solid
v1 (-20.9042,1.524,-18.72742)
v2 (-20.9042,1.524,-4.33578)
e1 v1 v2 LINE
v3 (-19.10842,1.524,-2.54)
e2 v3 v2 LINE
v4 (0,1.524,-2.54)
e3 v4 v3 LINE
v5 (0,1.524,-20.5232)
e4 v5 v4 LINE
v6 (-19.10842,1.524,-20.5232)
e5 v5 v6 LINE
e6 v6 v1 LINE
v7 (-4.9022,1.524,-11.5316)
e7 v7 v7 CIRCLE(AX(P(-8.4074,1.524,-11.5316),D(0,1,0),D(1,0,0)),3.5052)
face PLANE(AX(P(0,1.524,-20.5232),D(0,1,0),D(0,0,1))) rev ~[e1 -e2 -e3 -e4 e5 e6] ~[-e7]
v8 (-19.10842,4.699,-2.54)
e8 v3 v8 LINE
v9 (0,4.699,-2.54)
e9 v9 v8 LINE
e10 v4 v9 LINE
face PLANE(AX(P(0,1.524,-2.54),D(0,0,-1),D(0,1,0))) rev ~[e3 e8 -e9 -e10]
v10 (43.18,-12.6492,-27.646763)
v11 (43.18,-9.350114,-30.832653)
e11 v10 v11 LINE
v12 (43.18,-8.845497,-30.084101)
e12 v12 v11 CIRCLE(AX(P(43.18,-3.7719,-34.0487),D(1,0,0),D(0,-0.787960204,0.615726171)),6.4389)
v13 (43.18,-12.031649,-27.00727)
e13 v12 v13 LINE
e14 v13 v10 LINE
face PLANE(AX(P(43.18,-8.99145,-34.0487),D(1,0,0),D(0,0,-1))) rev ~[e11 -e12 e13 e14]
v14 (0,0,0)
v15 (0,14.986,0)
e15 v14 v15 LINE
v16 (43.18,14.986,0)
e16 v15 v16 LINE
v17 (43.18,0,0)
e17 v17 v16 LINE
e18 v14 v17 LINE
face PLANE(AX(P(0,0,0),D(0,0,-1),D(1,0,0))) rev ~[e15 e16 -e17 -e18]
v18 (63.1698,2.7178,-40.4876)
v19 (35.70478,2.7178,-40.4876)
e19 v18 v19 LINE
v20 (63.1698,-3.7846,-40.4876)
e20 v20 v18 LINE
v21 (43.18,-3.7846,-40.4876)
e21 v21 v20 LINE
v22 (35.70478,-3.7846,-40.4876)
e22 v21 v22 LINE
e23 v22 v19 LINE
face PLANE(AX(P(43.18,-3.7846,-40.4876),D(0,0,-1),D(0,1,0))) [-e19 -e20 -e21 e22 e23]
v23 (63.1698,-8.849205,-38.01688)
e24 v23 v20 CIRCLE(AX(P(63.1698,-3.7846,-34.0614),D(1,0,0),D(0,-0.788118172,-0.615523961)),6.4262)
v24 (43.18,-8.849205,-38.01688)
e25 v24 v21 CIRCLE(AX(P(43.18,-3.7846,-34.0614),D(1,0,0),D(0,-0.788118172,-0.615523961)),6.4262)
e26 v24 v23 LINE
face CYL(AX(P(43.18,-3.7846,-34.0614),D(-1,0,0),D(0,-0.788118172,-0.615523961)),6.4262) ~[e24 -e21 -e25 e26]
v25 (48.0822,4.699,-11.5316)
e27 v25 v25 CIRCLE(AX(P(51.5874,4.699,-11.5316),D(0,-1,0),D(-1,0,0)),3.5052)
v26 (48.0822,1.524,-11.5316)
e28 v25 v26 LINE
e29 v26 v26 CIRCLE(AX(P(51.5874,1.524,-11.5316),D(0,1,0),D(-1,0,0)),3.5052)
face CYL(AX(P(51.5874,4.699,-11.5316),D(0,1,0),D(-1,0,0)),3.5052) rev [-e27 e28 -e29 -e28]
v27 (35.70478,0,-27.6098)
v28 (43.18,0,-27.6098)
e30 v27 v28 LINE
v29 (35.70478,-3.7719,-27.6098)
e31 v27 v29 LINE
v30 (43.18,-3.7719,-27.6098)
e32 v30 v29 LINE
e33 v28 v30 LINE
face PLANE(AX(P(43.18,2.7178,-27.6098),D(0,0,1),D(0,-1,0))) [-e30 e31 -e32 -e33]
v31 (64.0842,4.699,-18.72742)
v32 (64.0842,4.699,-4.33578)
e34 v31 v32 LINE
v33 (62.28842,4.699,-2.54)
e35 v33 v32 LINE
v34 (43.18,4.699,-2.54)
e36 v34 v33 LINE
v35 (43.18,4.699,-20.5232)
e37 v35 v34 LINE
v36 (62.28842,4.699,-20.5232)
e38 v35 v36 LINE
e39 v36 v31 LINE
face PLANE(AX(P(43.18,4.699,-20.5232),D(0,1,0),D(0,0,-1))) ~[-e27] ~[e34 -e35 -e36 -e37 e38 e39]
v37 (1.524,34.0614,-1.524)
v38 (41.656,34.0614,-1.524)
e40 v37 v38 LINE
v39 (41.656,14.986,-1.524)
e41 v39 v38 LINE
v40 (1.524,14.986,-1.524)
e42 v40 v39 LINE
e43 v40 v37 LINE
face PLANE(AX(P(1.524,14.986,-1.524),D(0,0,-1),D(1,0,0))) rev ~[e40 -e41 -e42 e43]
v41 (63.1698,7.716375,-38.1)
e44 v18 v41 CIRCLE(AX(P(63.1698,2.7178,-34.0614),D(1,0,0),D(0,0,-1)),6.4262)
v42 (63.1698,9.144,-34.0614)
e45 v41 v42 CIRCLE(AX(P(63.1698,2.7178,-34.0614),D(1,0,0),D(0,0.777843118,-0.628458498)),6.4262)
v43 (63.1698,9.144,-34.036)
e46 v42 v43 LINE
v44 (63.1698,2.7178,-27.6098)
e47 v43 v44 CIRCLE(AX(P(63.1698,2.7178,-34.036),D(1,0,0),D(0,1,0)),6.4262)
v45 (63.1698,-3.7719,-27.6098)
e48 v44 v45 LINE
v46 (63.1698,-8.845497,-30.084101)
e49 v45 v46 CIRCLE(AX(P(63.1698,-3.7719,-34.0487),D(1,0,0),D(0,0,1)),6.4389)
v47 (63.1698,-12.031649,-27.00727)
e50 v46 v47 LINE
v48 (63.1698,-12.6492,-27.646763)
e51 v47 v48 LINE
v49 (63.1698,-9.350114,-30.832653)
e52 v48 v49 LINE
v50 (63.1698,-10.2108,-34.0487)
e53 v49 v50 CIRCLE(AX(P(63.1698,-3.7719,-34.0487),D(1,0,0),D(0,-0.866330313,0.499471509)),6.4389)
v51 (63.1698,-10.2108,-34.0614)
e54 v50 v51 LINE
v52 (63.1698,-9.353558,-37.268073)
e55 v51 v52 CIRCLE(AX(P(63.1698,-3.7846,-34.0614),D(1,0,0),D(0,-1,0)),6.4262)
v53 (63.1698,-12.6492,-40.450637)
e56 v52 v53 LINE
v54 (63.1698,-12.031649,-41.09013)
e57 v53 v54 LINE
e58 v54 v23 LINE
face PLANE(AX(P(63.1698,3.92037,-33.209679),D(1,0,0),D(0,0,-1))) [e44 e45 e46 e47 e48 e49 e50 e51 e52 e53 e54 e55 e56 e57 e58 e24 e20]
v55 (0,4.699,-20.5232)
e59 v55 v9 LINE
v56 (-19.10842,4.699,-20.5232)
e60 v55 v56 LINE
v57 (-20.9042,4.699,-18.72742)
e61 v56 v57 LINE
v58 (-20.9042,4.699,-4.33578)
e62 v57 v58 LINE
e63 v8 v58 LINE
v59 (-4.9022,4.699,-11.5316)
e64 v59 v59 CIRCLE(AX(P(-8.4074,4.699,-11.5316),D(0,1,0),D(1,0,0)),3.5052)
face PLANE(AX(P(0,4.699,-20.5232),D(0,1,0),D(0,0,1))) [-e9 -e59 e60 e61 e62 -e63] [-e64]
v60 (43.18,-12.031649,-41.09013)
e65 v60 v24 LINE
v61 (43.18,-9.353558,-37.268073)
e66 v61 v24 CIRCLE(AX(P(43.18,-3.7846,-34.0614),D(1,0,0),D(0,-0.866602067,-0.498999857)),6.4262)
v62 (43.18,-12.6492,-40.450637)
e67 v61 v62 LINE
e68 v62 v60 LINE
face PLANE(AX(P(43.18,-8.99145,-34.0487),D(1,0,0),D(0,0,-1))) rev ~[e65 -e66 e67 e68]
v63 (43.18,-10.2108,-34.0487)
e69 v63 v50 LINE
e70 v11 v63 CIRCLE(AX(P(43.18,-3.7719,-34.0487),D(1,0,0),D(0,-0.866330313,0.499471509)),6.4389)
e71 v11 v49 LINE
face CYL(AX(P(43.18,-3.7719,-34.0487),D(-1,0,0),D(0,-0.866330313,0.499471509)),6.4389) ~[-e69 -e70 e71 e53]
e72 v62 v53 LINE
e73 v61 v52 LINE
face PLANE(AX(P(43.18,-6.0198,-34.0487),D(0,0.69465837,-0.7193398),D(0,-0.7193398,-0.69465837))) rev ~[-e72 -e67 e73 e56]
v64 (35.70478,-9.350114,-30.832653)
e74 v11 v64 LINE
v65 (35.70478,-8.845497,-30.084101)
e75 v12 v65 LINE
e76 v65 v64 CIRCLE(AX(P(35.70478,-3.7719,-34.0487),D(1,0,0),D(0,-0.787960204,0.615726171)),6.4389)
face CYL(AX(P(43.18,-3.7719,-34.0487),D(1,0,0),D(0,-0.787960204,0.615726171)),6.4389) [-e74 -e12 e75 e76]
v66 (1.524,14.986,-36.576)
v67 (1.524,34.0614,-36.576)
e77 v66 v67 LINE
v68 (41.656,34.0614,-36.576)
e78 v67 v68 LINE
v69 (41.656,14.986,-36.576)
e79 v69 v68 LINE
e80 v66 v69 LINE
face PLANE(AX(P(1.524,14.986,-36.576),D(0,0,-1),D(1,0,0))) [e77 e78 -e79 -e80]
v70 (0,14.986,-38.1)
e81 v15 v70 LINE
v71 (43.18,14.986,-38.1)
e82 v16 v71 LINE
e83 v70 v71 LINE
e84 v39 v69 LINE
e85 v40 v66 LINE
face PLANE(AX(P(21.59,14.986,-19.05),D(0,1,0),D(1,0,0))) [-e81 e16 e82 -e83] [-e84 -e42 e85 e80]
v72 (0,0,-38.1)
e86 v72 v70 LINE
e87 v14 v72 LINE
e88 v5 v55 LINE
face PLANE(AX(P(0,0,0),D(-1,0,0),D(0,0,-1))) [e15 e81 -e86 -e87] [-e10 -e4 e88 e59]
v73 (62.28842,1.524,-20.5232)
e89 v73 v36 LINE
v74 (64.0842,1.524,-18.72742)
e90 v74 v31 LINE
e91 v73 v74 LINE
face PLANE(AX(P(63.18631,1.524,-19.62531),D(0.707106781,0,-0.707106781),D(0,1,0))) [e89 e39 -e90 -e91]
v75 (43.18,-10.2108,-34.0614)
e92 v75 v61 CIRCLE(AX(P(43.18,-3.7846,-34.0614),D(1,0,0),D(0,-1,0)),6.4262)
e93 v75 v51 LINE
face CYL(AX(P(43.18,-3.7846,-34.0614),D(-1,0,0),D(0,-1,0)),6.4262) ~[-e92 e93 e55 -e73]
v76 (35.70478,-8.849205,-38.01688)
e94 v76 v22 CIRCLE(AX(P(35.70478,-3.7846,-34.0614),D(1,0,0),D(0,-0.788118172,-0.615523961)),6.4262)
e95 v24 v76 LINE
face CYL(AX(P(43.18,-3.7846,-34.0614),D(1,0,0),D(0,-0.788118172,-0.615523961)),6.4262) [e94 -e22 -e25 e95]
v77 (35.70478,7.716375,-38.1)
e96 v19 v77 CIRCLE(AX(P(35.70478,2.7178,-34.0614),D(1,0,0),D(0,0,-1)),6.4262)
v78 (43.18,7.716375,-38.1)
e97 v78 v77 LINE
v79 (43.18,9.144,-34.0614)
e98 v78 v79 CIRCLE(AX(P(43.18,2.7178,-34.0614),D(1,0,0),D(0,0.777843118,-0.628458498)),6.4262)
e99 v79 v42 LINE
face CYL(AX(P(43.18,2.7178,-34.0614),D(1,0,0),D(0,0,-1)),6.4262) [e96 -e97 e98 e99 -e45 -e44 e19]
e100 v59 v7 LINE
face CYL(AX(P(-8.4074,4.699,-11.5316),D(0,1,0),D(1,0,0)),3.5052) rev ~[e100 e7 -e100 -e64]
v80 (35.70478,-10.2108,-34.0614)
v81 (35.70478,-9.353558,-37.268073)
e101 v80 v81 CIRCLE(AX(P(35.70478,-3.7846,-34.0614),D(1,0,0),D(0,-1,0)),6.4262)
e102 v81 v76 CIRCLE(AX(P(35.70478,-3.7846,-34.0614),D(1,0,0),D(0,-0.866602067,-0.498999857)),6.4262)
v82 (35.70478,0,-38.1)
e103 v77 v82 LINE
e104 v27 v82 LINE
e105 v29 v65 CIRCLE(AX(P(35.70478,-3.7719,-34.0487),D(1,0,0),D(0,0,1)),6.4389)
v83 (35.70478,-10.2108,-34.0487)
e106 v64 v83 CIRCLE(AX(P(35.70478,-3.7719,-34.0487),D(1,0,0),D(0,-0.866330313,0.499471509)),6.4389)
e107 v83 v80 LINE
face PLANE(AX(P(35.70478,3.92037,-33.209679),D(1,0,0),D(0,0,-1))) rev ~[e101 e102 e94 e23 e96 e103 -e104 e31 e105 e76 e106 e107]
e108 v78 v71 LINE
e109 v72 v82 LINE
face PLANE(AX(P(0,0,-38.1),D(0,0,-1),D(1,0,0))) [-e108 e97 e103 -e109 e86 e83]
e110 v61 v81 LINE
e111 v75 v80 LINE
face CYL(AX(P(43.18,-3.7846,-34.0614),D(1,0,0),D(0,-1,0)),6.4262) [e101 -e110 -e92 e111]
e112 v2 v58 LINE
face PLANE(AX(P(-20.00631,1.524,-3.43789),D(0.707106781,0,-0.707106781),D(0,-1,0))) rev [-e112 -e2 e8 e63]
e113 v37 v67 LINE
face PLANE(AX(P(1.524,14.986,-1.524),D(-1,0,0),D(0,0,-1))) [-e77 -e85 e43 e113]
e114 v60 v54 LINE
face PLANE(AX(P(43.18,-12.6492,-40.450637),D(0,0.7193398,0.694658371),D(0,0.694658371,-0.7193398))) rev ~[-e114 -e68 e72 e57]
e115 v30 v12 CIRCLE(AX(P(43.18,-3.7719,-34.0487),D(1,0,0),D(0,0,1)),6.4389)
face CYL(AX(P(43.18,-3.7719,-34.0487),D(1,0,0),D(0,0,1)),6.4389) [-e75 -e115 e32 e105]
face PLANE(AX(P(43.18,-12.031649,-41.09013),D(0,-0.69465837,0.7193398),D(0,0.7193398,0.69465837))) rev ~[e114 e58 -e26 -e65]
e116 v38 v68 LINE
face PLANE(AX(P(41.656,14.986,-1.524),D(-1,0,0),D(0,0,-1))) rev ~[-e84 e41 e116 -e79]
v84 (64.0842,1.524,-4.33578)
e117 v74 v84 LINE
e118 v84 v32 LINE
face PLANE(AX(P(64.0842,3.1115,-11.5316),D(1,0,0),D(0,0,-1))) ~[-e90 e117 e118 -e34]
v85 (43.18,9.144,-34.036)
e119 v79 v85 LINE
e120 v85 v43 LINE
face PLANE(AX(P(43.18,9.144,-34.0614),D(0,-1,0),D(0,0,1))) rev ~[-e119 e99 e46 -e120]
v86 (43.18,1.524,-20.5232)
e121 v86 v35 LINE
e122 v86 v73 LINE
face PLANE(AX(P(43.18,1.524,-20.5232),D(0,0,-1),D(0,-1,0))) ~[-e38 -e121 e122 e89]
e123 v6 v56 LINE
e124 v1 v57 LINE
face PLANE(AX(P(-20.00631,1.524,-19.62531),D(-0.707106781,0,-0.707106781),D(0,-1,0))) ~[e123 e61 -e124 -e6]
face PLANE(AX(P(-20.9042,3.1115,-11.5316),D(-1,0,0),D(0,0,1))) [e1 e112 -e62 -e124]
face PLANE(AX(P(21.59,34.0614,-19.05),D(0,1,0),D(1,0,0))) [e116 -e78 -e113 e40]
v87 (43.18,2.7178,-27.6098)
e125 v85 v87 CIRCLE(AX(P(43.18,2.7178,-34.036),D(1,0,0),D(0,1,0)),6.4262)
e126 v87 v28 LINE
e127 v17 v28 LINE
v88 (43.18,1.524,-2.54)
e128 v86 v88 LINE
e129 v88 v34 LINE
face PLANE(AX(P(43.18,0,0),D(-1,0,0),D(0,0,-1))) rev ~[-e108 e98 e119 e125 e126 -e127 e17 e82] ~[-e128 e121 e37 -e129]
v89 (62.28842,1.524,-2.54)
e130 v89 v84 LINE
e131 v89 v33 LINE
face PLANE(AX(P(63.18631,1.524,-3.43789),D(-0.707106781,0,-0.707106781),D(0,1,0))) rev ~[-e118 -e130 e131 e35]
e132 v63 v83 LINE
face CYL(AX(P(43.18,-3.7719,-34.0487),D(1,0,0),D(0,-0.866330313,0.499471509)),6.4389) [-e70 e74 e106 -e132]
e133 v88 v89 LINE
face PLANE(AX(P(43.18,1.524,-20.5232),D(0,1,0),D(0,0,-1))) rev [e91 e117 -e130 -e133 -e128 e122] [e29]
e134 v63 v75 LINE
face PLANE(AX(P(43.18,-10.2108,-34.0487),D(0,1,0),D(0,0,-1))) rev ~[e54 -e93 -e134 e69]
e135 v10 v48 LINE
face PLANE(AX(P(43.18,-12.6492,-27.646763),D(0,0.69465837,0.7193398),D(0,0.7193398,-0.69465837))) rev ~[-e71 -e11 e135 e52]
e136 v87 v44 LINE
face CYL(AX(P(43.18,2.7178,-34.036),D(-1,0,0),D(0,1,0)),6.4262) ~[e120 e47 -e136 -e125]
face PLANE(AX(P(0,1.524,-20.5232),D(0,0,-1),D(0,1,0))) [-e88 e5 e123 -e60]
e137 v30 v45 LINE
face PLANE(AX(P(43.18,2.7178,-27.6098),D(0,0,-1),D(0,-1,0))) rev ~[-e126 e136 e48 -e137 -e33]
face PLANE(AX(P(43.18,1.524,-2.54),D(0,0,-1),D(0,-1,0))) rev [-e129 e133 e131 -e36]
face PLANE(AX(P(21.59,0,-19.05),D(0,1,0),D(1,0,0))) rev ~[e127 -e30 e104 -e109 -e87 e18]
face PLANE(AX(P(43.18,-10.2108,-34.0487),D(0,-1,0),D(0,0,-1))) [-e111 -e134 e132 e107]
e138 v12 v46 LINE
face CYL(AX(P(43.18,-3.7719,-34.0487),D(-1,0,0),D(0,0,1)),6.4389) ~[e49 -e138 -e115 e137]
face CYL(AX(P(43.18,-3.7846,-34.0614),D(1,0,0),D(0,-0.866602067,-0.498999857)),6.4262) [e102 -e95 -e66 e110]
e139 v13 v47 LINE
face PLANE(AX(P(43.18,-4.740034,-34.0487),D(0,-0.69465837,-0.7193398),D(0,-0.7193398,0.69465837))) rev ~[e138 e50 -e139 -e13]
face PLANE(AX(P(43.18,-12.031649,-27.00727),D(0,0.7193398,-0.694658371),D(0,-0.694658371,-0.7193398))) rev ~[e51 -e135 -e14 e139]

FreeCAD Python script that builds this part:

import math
import FreeCAD as App
import Part
import Sketcher
from FreeCAD import Vector
Q = App.Units.Quantity


def edges_at(feature, points):
    """Names of the edges that pass closest to the given points."""
    edges = feature.Shape.Edges
    near = lambda p: min(range(len(edges)), key=lambda i: edges[i].distToShape(Part.Vertex(*p))[0])
    return sorted({f"Edge{near(p) + 1}" for p in points})


def add_polygon(sketch, points):
    """Adds a closed chain of lines whose ends are joined by coincident constraints."""
    first, n = sketch.GeometryCount, len(points)
    for a, b in zip(points, points[1:] + points[:1]):
        sketch.addGeometry(Part.LineSegment(App.Vector(*a, 0), App.Vector(*b, 0)), False)
    for i in range(n):
        sketch.addConstraint(Sketcher.Constraint("Coincident", first + i, 2, first + (i + 1) % n, 1))

doc = App.newDocument("Part")
body = doc.addObject("PartDesign::Body", "Body")

sketch1 = doc.addObject("Sketcher::SketchObject", "Sketch")
body.addObject(sketch1)
sketch1.AttachmentSupport = (doc.XZ_Plane, [""])
sketch1.MapMode = "FlatFace"
add_polygon(sketch1, [(0, -38), (0, 0), (43, 0), (43, -38)])
sketch1.addConstraint([
    Sketcher.Constraint("Vertical", 0),
    Sketcher.Constraint("Horizontal", 1),
    Sketcher.Constraint("Vertical", 2),
    Sketcher.Constraint("Horizontal", 3),
    Sketcher.Constraint("Coincident", 0, 2, -1, 1),
    Sketcher.Constraint("DistanceX", 1, 1, 1, 2, Q("1.7 in")),
    Sketcher.Constraint("DistanceY", 0, 1, 0, 2, Q("1.5 in")),
])
pad1 = doc.addObject("PartDesign::Pad", "Pad")
body.addObject(pad1)
pad1.Profile = sketch1
pad1.Length = Q("0.59 in")
pad1.Reversed = True

sketch2 = doc.addObject("Sketcher::SketchObject", "Sketch001")
body.addObject(sketch2)
sketch2.AttachmentSupport = (doc.XZ_Plane, [""])
sketch2.MapMode = "FlatFace"
sketch2.AttachmentOffset = App.Placement(Vector(0, 0, -0.59 * 25.4), App.Rotation())
add_polygon(sketch2, [(2, -37), (2, -2), (42, -2), (42, -37)])
sketch2.addConstraint([
    Sketcher.Constraint("Vertical", 0),
    Sketcher.Constraint("Horizontal", 1),
    Sketcher.Constraint("Vertical", 2),
    Sketcher.Constraint("Horizontal", 3),
    Sketcher.Constraint("DistanceX", 1, 1, 1, 2, Q("1.58 in")),
    Sketcher.Constraint("DistanceY", 0, 1, 0, 2, Q("1.38 in")),
    Sketcher.Constraint("DistanceX", -1, 1, 0, 2, Q("0.06 in")),
    Sketcher.Constraint("DistanceY", 0, 2, -1, 1, Q("0.06 in")),
])
pad2 = doc.addObject("PartDesign::Pad", "Pad001")
body.addObject(pad2)
pad2.Profile = sketch2
pad2.Length = Q("0.751 in")
pad2.Reversed = True

sketch3 = doc.addObject("Sketcher::SketchObject", "Sketch002")
body.addObject(sketch3)
sketch3.AttachmentSupport = (doc.YZ_Plane, [""])
sketch3.MapMode = "FlatFace"
add_polygon(sketch3, [(4.7, -20.5), (1.5, -20.5), (1.5, -2.5), (4.7, -2.5)])
sketch3.addConstraint([
    Sketcher.Constraint("Horizontal", 0),
    Sketcher.Constraint("Vertical", 1),
    Sketcher.Constraint("Horizontal", 2),
    Sketcher.Constraint("Vertical", 3),
    Sketcher.Constraint("DistanceY", 1, 2, -1, 1, Q("0.1 in")),
    Sketcher.Constraint("DistanceX", 0, 2, 0, 1, Q("0.125 in")),
    Sketcher.Constraint("DistanceY", 1, 1, 1, 2, Q("0.708 in")),
    Sketcher.Constraint("DistanceX", -1, 1, 0, 2, Q("0.06 in")),
])
pad3 = doc.addObject("PartDesign::Pad", "Pad002")
body.addObject(pad3)
pad3.Profile = sketch3
pad3.Length = Q("0.823 in")
pad3.Reversed = True
doc.recompute()

datumplane = doc.addObject("PartDesign::Plane", "DatumPlane")
body.addObject(datumplane)
datumplane.AttachmentSupport = (doc.YZ_Plane, [""])
datumplane.MapMode = "FlatFace"
datumplane.AttachmentOffset = App.Placement(Vector(0, 0, 0.85 * 25.4), App.Rotation())
mirrored = doc.addObject("PartDesign::Mirrored", "Mirrored")
body.addObject(mirrored)
mirrored.Originals = [pad3]
mirrored.MirrorPlane = (datumplane, [""])
body.Tip = mirrored

sketch4 = doc.addObject("Sketcher::SketchObject", "Sketch003")
body.addObject(sketch4)
sketch4.AttachmentSupport = (doc.XZ_Plane, [""])
sketch4.MapMode = "FlatFace"
sketch4.AttachmentOffset = App.Placement(Vector(0, 0, -0.185 * 25.4), App.Rotation())
sketch4.addGeometry(Part.Circle(Vector(-8.4, -11.5, 0), Vector(0, 0, 1), 3.5), False)
sketch4.addConstraint([
    Sketcher.Constraint("Diameter", 0, Q("0.276 in")),
    Sketcher.Constraint("DistanceX", 0, 3, -1, 1, Q("0.331 in")),
    Sketcher.Constraint("DistanceY", 0, 3, -1, 1, Q("0.454 in")),
])
pocket1 = doc.addObject("PartDesign::Pocket", "Pocket")
body.addObject(pocket1)
pocket1.Profile = sketch4
pocket1.Type = "ThroughAll"
pocket1.Reversed = True
doc.recompute()

datumplane2 = doc.addObject("PartDesign::Plane", "DatumPlane001")
body.addObject(datumplane2)
datumplane2.AttachmentSupport = (doc.YZ_Plane, [""])
datumplane2.MapMode = "FlatFace"
datumplane2.AttachmentOffset = App.Placement(Vector(0, 0, 0.85 * 25.4), App.Rotation())
mirrored2 = doc.addObject("PartDesign::Mirrored", "Mirrored001")
body.addObject(mirrored2)
mirrored2.Originals = [pocket1]
mirrored2.MirrorPlane = (datumplane2, [""])
body.Tip = mirrored2
doc.recompute()

chamfer = doc.addObject("PartDesign::Chamfer", "Chamfer")
body.addObject(chamfer)
chamfer.Base = (mirrored2, edges_at(mirrored2, [(64.084, 3.111, -20.523), (64.084, 3.111, -2.54)]))
chamfer.Size = Q("0.0707 in")
doc.recompute()

chamfer2 = doc.addObject("PartDesign::Chamfer", "Chamfer001")
body.addObject(chamfer2)
chamfer2.Base = (chamfer, edges_at(chamfer, [(-20.904, 3.111, -20.523), (-20.904, 3.111, -2.54)]))
chamfer2.Size = Q("0.0707 in")

sketch5 = doc.addObject("Sketcher::SketchObject", "Sketch004")
body.addObject(sketch5)
sketch5.AttachmentSupport = (doc.YZ_Plane, [""])
sketch5.MapMode = "FlatFace"
sketch5.AttachmentOffset = App.Placement(Vector(0, 0, 1.7 * 25.4), App.Rotation())
sketch5.addGeometry([
    Part.LineSegment(Vector(9.144, -34.061, 0), Vector(9.144, -34.036, 0)),
    Part.ArcOfCircle(Part.Circle(Vector(2.718, -34.036, 0), Vector(0, 0, 1), 6.426), math.radians(0), math.radians(90)),
    Part.LineSegment(Vector(2.718, -27.61, 0), Vector(-3.772, -27.61, 0)),
    Part.ArcOfCircle(Part.Circle(Vector(-3.772, -34.049, 0), Vector(0, 0, 1), 6.439), math.radians(90), math.radians(142)),
    Part.ArcOfCircle(Part.Circle(Vector(-3.772, -34.049, 0), Vector(0, 0, 1), 6.439), math.radians(142), math.radians(150.03)),
    Part.ArcOfCircle(Part.Circle(Vector(-3.772, -34.049, 0), Vector(0, 0, 1), 6.439), math.radians(150), math.radians(180)),
    Part.LineSegment(Vector(-10.211, -34.049, 0), Vector(-10.211, -34.061, 0)),
    Part.ArcOfCircle(Part.Circle(Vector(-3.785, -34.061, 0), Vector(0, 0, 1), 6.426), math.radians(-180), math.radians(-150)),
    Part.ArcOfCircle(Part.Circle(Vector(-3.785, -34.061, 0), Vector(0, 0, 1), 6.426), math.radians(-150.07), math.radians(-142.01)),
    Part.ArcOfCircle(Part.Circle(Vector(-3.785, -34.061, 0), Vector(0, 0, 1), 6.426), math.radians(-142), math.radians(-90)),
    Part.LineSegment(Vector(-3.785, -40.488, 0), Vector(2.718, -40.488, 0)),
    Part.ArcOfCircle(Part.Circle(Vector(2.718, -34.061, 0), Vector(0, 0, 1), 6.426), math.radians(-90), math.radians(-39)),
    Part.ArcOfCircle(Part.Circle(Vector(2.718, -34.061, 0), Vector(0, 0, 1), 6.426), math.radians(-39), math.radians(0)),
], False)
sketch5.addConstraint([
    Sketcher.Constraint("Tangent", 0, 2, 1, 1),
    Sketcher.Constraint("Tangent", 1, 2, 2, 1),
    Sketcher.Constraint("Tangent", 2, 2, 3, 1),
    Sketcher.Constraint("Tangent", 3, 2, 4, 1),
    Sketcher.Constraint("Tangent", 4, 2, 5, 1),
    Sketcher.Constraint("Tangent", 5, 2, 6, 1),
    Sketcher.Constraint("Tangent", 6, 2, 7, 1),
    Sketcher.Constraint("Tangent", 7, 2, 8, 1),
    Sketcher.Constraint("Tangent", 8, 2, 9, 1),
    Sketcher.Constraint("Tangent", 9, 2, 10, 1),
    Sketcher.Constraint("Tangent", 10, 2, 11, 1),
    Sketcher.Constraint("Tangent", 11, 2, 12, 1),
    Sketcher.Constraint("Tangent", 12, 2, 0, 1),
    Sketcher.Constraint("Vertical", 0),
    Sketcher.Constraint("Horizontal", 2),
    Sketcher.Constraint("Horizontal", 10),
    Sketcher.Constraint("Coincident", 5, 3, 3, 3),
    Sketcher.Constraint("Coincident", 9, 3, 7, 3),
    Sketcher.Constraint("Equal", 1, 7),
    Sketcher.Constraint("Equal", 9, 11),
    Sketcher.Constraint("Equal", 11, 12),
    Sketcher.Constraint("Horizontal", 4, 3, 5, 2),
    Sketcher.Constraint("Radius", 1, Q("0.253 in")),
    Sketcher.Constraint("DistanceY", 11, 2, -1, 1, Q("1.5 in")),
    Sketcher.Constraint("Radius", 3, Q("0.2535 in")),
    Sketcher.Constraint("DistanceX", 10, 1, 10, 2, Q("0.256 in")),
    Sketcher.Constraint("DistanceY", 0, 1, 0, 2, Q("0.001 in")),
    Sketcher.Constraint("DistanceY", 1, 3, -1, 1, Q("1.34 in")),
    Sketcher.Constraint("DistanceX", -1, 1, 0, 2, Q("0.36 in")),
    Sketcher.Constraint("DistanceY", 3, 2, -1, 1, 30.084101),
    Sketcher.Constraint("DistanceX", 7, 2, -1, 1, 9.353558),
    Sketcher.Constraint("DistanceY", 8, 2, -1, 1, 38.01688),
    Sketcher.Constraint("DistanceX", 4, 2, -1, 1, 9.350114),
])
pad4 = doc.addObject("PartDesign::Pad", "Pad003")
body.addObject(pad4)
pad4.Profile = sketch5
pad4.Type = "TwoLengths"
pad4.Length = Q("0.787 in")
pad4.Length2 = Q("0.2943 in")

sketch6 = doc.addObject("Sketcher::SketchObject", "Sketch005")
body.addObject(sketch6)
sketch6.AttachmentSupport = (doc.YZ_Plane, [""])
sketch6.MapMode = "FlatFace"
sketch6.AttachmentOffset = App.Placement(Vector(0, 0, 1.7 * 25.4), App.Rotation())
add_polygon(sketch6, [(-4.7, -34), (-12, -27), (-12.6, -27.6), (-6, -34), (-12.6, -40.5), (-12, -41.1)])
sketch6.addConstraint([
    Sketcher.Constraint("Perpendicular", 0, 1),
    Sketcher.Constraint("Perpendicular", 1, 2),
    Sketcher.Constraint("Perpendicular", 3, 4),
    Sketcher.Constraint("Perpendicular", 4, 5),
    Sketcher.Constraint("Horizontal", 2, 2, 5, 2),
    Sketcher.Constraint("Vertical", 1, 2, 3, 2),
    Sketcher.Constraint("Vertical", 0, 2, 4, 2),
    Sketcher.Constraint("Angle", 0, Q("136 deg")),
    Sketcher.Constraint("Distance", 1, Q("0.035 in")),
    Sketcher.Constraint("DistanceX", 1, 2, -1, 1, Q("0.498 in")),
    Sketcher.Constraint("DistanceX", 2, 2, -1, 1, Q("0.237 in")),
    Sketcher.Constraint("DistanceY", 2, 2, -1, 1, Q("1.3405 in")),
])
pad5 = doc.addObject("PartDesign::Pad", "Pad004")
body.addObject(pad5)
pad5.Profile = sketch6
pad5.Length = Q("0.787 in")

doc.recompute()
